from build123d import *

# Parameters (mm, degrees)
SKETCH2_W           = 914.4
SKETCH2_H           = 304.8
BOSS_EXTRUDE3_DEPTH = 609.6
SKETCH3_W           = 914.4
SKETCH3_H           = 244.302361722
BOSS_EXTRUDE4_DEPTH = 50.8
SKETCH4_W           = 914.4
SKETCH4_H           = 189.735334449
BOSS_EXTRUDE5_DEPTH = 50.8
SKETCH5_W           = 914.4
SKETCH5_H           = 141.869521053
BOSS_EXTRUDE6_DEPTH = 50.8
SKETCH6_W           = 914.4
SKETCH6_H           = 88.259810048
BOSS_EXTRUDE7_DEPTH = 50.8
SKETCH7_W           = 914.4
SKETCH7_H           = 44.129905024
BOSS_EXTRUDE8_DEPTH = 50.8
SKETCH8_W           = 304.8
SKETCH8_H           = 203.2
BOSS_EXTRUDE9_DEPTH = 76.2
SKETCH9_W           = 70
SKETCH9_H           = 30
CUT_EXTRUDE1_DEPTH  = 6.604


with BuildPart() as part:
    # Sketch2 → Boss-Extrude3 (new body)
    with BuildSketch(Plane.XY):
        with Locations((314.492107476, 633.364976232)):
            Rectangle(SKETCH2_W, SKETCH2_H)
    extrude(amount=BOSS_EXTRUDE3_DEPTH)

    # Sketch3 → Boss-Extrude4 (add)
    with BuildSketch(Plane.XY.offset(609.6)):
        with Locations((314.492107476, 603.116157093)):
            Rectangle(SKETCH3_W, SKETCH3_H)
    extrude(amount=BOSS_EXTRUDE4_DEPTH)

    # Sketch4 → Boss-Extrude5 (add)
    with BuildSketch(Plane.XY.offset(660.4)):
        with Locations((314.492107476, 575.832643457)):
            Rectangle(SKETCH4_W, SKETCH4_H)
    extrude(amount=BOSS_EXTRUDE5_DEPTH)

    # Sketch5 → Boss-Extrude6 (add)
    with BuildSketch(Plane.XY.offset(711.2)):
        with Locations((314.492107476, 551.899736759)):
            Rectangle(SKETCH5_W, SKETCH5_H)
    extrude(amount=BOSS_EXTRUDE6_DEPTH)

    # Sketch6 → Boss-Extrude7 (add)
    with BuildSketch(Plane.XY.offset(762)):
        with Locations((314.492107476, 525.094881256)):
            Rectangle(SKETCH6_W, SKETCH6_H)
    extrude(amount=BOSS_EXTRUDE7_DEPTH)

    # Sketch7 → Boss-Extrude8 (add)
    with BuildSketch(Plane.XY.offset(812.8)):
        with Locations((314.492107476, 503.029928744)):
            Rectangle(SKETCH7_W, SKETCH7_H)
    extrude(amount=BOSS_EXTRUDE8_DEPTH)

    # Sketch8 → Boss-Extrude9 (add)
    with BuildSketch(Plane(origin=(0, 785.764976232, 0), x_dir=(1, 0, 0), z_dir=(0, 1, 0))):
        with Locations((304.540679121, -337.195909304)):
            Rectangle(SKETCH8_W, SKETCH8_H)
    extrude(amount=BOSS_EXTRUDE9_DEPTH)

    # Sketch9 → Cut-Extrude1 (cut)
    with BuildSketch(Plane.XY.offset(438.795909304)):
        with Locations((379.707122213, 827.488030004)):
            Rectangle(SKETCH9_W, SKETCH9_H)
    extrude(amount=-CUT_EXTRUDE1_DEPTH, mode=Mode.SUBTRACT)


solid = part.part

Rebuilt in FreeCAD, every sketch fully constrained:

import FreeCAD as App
import Part
import Sketcher
Q = App.Units.Quantity

doc = App.newDocument("Part")
body = doc.addObject("PartDesign::Body", "Body")

sketch1 = body.newObject("Sketcher::SketchObject", "Sketch")
sketch1.AttachmentSupport = (doc.getObject("XY_Plane"), [""])
sketch1.MapMode = "FlatFace"
sketch1.addGeometry(Part.LineSegment(App.Vector(-142.707893, 785.764976, 0), App.Vector(-142.707893, 480.964976, 0)), False)
sketch1.addGeometry(Part.LineSegment(App.Vector(-142.707893, 480.964976, 0), App.Vector(771.692107, 480.964976, 0)), False)
sketch1.addGeometry(Part.LineSegment(App.Vector(771.692107, 480.964976, 0), App.Vector(771.692107, 785.764976, 0)), False)
sketch1.addGeometry(Part.LineSegment(App.Vector(771.692107, 785.764976, 0), App.Vector(-142.707893, 785.764976, 0)), False)
sketch1.addConstraint(Sketcher.Constraint("Coincident", 0, 2, 1, 1))
sketch1.addConstraint(Sketcher.Constraint("Coincident", 1, 2, 2, 1))
sketch1.addConstraint(Sketcher.Constraint("Coincident", 2, 2, 3, 1))
sketch1.addConstraint(Sketcher.Constraint("Coincident", 3, 2, 0, 1))
sketch1.addConstraint(Sketcher.Constraint("Vertical", 0))
sketch1.addConstraint(Sketcher.Constraint("Horizontal", 1))
sketch1.addConstraint(Sketcher.Constraint("Vertical", 2))
sketch1.addConstraint(Sketcher.Constraint("Horizontal", 3))
sketch1.addConstraint(Sketcher.Constraint("DistanceX", 1, 1, 1, 2, Q("36 in")))
sketch1.addConstraint(Sketcher.Constraint("DistanceY", 0, 2, 0, 1, Q("12 in")))
sketch1.addConstraint(Sketcher.Constraint("DistanceX", 0, 2, -1, 1, Q("142.707893 mm")))
sketch1.addConstraint(Sketcher.Constraint("DistanceY", -1, 1, 0, 2, Q("480.964976 mm")))
pad1 = body.newObject("PartDesign::Pad", "Pad")
pad1.Profile = sketch1
pad1.Length = Q("24 in")

sketch2 = body.newObject("Sketcher::SketchObject", "Sketch001")
sketch2.AttachmentSupport = (doc.getObject("XY_Plane"), [""])
sketch2.MapMode = "FlatFace"
sketch2.AttachmentOffset = App.Placement(App.Vector(0, 0, 24 * 25.4), App.Rotation())
sketch2.addGeometry(Part.LineSegment(App.Vector(-142.707893, 725.267338, 0), App.Vector(-142.707893, 480.964976, 0)), False)
sketch2.addGeometry(Part.LineSegment(App.Vector(-142.707893, 480.964976, 0), App.Vector(771.692107, 480.964976, 0)), False)
sketch2.addGeometry(Part.LineSegment(App.Vector(771.692107, 480.964976, 0), App.Vector(771.692107, 725.267338, 0)), False)
sketch2.addGeometry(Part.LineSegment(App.Vector(771.692107, 725.267338, 0), App.Vector(-142.707893, 725.267338, 0)), False)
sketch2.addConstraint(Sketcher.Constraint("Coincident", 0, 2, 1, 1))
sketch2.addConstraint(Sketcher.Constraint("Coincident", 1, 2, 2, 1))
sketch2.addConstraint(Sketcher.Constraint("Coincident", 2, 2, 3, 1))
sketch2.addConstraint(Sketcher.Constraint("Coincident", 3, 2, 0, 1))
sketch2.addConstraint(Sketcher.Constraint("Vertical", 0))
sketch2.addConstraint(Sketcher.Constraint("Horizontal", 1))
sketch2.addConstraint(Sketcher.Constraint("Vertical", 2))
sketch2.addConstraint(Sketcher.Constraint("Horizontal", 3))
sketch2.addConstraint(Sketcher.Constraint("DistanceX", 1, 1, 1, 2, Q("36 in")))
sketch2.addConstraint(Sketcher.Constraint("DistanceY", 0, 2, 0, 1, Q("244.302362 mm")))
sketch2.addConstraint(Sketcher.Constraint("DistanceX", 0, 2, -1, 1, Q("142.707893 mm")))
sketch2.addConstraint(Sketcher.Constraint("DistanceY", -1, 1, 0, 2, Q("480.964976 mm")))
pad2 = body.newObject("PartDesign::Pad", "Pad001")
pad2.Profile = sketch2
pad2.Length = Q("2 in")

sketch3 = body.newObject("Sketcher::SketchObject", "Sketch002")
sketch3.AttachmentSupport = (doc.getObject("XY_Plane"), [""])
sketch3.MapMode = "FlatFace"
sketch3.AttachmentOffset = App.Placement(App.Vector(0, 0, 26 * 25.4), App.Rotation())
sketch3.addGeometry(Part.LineSegment(App.Vector(-142.707893, 670.700311, 0), App.Vector(-142.707893, 480.964976, 0)), False)
sketch3.addGeometry(Part.LineSegment(App.Vector(-142.707893, 480.964976, 0), App.Vector(771.692107, 480.964976, 0)), False)
sketch3.addGeometry(Part.LineSegment(App.Vector(771.692107, 480.964976, 0), App.Vector(771.692107, 670.700311, 0)), False)
sketch3.addGeometry(Part.LineSegment(App.Vector(771.692107, 670.700311, 0), App.Vector(-142.707893, 670.700311, 0)), False)
sketch3.addConstraint(Sketcher.Constraint("Coincident", 0, 2, 1, 1))
sketch3.addConstraint(Sketcher.Constraint("Coincident", 1, 2, 2, 1))
sketch3.addConstraint(Sketcher.Constraint("Coincident", 2, 2, 3, 1))
sketch3.addConstraint(Sketcher.Constraint("Coincident", 3, 2, 0, 1))
sketch3.addConstraint(Sketcher.Constraint("Vertical", 0))
sketch3.addConstraint(Sketcher.Constraint("Horizontal", 1))
sketch3.addConstraint(Sketcher.Constraint("Vertical", 2))
sketch3.addConstraint(Sketcher.Constraint("Horizontal", 3))
sketch3.addConstraint(Sketcher.Constraint("DistanceX", 1, 1, 1, 2, Q("36 in")))
sketch3.addConstraint(Sketcher.Constraint("DistanceY", 0, 2, 0, 1, Q("189.735334 mm")))
sketch3.addConstraint(Sketcher.Constraint("DistanceY", -1, 1, 2, 2, Q("670.700311 mm")))
sketch3.addConstraint(Sketcher.Constraint("DistanceX", 0, 2, -1, 1, Q("142.707893 mm")))
pad3 = body.newObject("PartDesign::Pad", "Pad002")
pad3.Profile = sketch3
pad3.Length = Q("2 in")

sketch4 = body.newObject("Sketcher::SketchObject", "Sketch003")
sketch4.AttachmentSupport = (doc.getObject("XY_Plane"), [""])
sketch4.MapMode = "FlatFace"
sketch4.AttachmentOffset = App.Placement(App.Vector(0, 0, 28 * 25.4), App.Rotation())
sketch4.addGeometry(Part.LineSegment(App.Vector(-142.707893, 622.834497, 0), App.Vector(-142.707893, 480.964976, 0)), False)
sketch4.addGeometry(Part.LineSegment(App.Vector(-142.707893, 480.964976, 0), App.Vector(771.692107, 480.964976, 0)), False)
sketch4.addGeometry(Part.LineSegment(App.Vector(771.692107, 480.964976, 0), App.Vector(771.692107, 622.834497, 0)), False)
sketch4.addGeometry(Part.LineSegment(App.Vector(771.692107, 622.834497, 0), App.Vector(-142.707893, 622.834497, 0)), False)
sketch4.addConstraint(Sketcher.Constraint("Coincident", 0, 2, 1, 1))
sketch4.addConstraint(Sketcher.Constraint("Coincident", 1, 2, 2, 1))
sketch4.addConstraint(Sketcher.Constraint("Coincident", 2, 2, 3, 1))
sketch4.addConstraint(Sketcher.Constraint("Coincident", 3, 2, 0, 1))
sketch4.addConstraint(Sketcher.Constraint("Vertical", 0))
sketch4.addConstraint(Sketcher.Constraint("Horizontal", 1))
sketch4.addConstraint(Sketcher.Constraint("Vertical", 2))
sketch4.addConstraint(Sketcher.Constraint("Horizontal", 3))
sketch4.addConstraint(Sketcher.Constraint("DistanceX", 1, 1, 1, 2, Q("36 in")))
sketch4.addConstraint(Sketcher.Constraint("DistanceY", 0, 2, 0, 1, Q("141.869521 mm")))
sketch4.addConstraint(Sketcher.Constraint("DistanceX", 0, 2, -1, 1, Q("142.707893 mm")))
sketch4.addConstraint(Sketcher.Constraint("DistanceY", -1, 1, 0, 2, Q("480.964976 mm")))
pad4 = body.newObject("PartDesign::Pad", "Pad003")
pad4.Profile = sketch4
pad4.Length = Q("2 in")

sketch5 = body.newObject("Sketcher::SketchObject", "Sketch004")
sketch5.AttachmentSupport = (doc.getObject("XY_Plane"), [""])
sketch5.MapMode = "FlatFace"
sketch5.AttachmentOffset = App.Placement(App.Vector(0, 0, 30 * 25.4), App.Rotation())
sketch5.addGeometry(Part.LineSegment(App.Vector(-142.707893, 569.224786, 0), App.Vector(-142.707893, 480.964976, 0)), False)
sketch5.addGeometry(Part.LineSegment(App.Vector(-142.707893, 480.964976, 0), App.Vector(771.692107, 480.964976, 0)), False)
sketch5.addGeometry(Part.LineSegment(App.Vector(771.692107, 480.964976, 0), App.Vector(771.692107, 569.224786, 0)), False)
sketch5.addGeometry(Part.LineSegment(App.Vector(771.692107, 569.224786, 0), App.Vector(-142.707893, 569.224786, 0)), False)
sketch5.addConstraint(Sketcher.Constraint("Coincident", 0, 2, 1, 1))
sketch5.addConstraint(Sketcher.Constraint("Coincident", 1, 2, 2, 1))
sketch5.addConstraint(Sketcher.Constraint("Coincident", 2, 2, 3, 1))
sketch5.addConstraint(Sketcher.Constraint("Coincident", 3, 2, 0, 1))
sketch5.addConstraint(Sketcher.Constraint("Vertical", 0))
sketch5.addConstraint(Sketcher.Constraint("Horizontal", 1))
sketch5.addConstraint(Sketcher.Constraint("Vertical", 2))
sketch5.addConstraint(Sketcher.Constraint("Horizontal", 3))
sketch5.addConstraint(Sketcher.Constraint("DistanceX", 1, 1, 1, 2, Q("36 in")))
sketch5.addConstraint(Sketcher.Constraint("DistanceY", 0, 2, 0, 1, Q("88.25981 mm")))
sketch5.addConstraint(Sketcher.Constraint("DistanceX", 0, 2, -1, 1, Q("142.707893 mm")))
sketch5.addConstraint(Sketcher.Constraint("DistanceY", -1, 1, 0, 2, Q("480.964976 mm")))
pad5 = body.newObject("PartDesign::Pad", "Pad004")
pad5.Profile = sketch5
pad5.Length = Q("2 in")

sketch6 = body.newObject("Sketcher::SketchObject", "Sketch005")
sketch6.AttachmentSupport = (doc.getObject("XY_Plane"), [""])
sketch6.MapMode = "FlatFace"
sketch6.AttachmentOffset = App.Placement(App.Vector(0, 0, 32 * 25.4), App.Rotation())
sketch6.addGeometry(Part.LineSegment(App.Vector(-142.707893, 525.094881, 0), App.Vector(-142.707893, 480.964976, 0)), False)
sketch6.addGeometry(Part.LineSegment(App.Vector(-142.707893, 480.964976, 0), App.Vector(771.692107, 480.964976, 0)), False)
sketch6.addGeometry(Part.LineSegment(App.Vector(771.692107, 480.964976, 0), App.Vector(771.692107, 525.094881, 0)), False)
sketch6.addGeometry(Part.LineSegment(App.Vector(771.692107, 525.094881, 0), App.Vector(-142.707893, 525.094881, 0)), False)
sketch6.addConstraint(Sketcher.Constraint("Coincident", 0, 2, 1, 1))
sketch6.addConstraint(Sketcher.Constraint("Coincident", 1, 2, 2, 1))
sketch6.addConstraint(Sketcher.Constraint("Coincident", 2, 2, 3, 1))
sketch6.addConstraint(Sketcher.Constraint("Coincident", 3, 2, 0, 1))
sketch6.addConstraint(Sketcher.Constraint("Vertical", 0))
sketch6.addConstraint(Sketcher.Constraint("Horizontal", 1))
sketch6.addConstraint(Sketcher.Constraint("Vertical", 2))
sketch6.addConstraint(Sketcher.Constraint("Horizontal", 3))
sketch6.addConstraint(Sketcher.Constraint("DistanceX", 1, 1, 1, 2, Q("36 in")))
sketch6.addConstraint(Sketcher.Constraint("DistanceY", 0, 2, 0, 1, Q("44.129905 mm")))
sketch6.addConstraint(Sketcher.Constraint("DistanceY", -1, 1, 2, 2, Q("525.094881 mm")))
sketch6.addConstraint(Sketcher.Constraint("DistanceX", 0, 2, -1, 1, Q("142.707893 mm")))
pad6 = body.newObject("PartDesign::Pad", "Pad005")
pad6.Profile = sketch6
pad6.Length = Q("2 in")

sketch7 = body.newObject("Sketcher::SketchObject", "Sketch006")
sketch7.AttachmentSupport = (doc.getObject("XZ_Plane"), [""])
sketch7.MapMode = "FlatFace"
sketch7.AttachmentOffset = App.Placement(App.Vector(0, 0, -785.764976), App.Rotation())
sketch7.addGeometry(Part.LineSegment(App.Vector(152.140679, 235.595909, 0), App.Vector(152.140679, 438.795909, 0)), False)
sketch7.addGeometry(Part.LineSegment(App.Vector(152.140679, 438.795909, 0), App.Vector(456.940679, 438.795909, 0)), False)
sketch7.addGeometry(Part.LineSegment(App.Vector(456.940679, 438.795909, 0), App.Vector(456.940679, 235.595909, 0)), False)
sketch7.addGeometry(Part.LineSegment(App.Vector(456.940679, 235.595909, 0), App.Vector(152.140679, 235.595909, 0)), False)
sketch7.addConstraint(Sketcher.Constraint("Coincident", 0, 2, 1, 1))
sketch7.addConstraint(Sketcher.Constraint("Coincident", 1, 2, 2, 1))
sketch7.addConstraint(Sketcher.Constraint("Coincident", 2, 2, 3, 1))
sketch7.addConstraint(Sketcher.Constraint("Coincident", 3, 2, 0, 1))
sketch7.addConstraint(Sketcher.Constraint("Vertical", 0))
sketch7.addConstraint(Sketcher.Constraint("Horizontal", 1))
sketch7.addConstraint(Sketcher.Constraint("Vertical", 2))
sketch7.addConstraint(Sketcher.Constraint("Horizontal", 3))
sketch7.addConstraint(Sketcher.Constraint("DistanceX", 1, 1, 1, 2, Q("12 in")))
sketch7.addConstraint(Sketcher.Constraint("DistanceY", 0, 1, 0, 2, Q("8 in")))
sketch7.addConstraint(Sketcher.Constraint("DistanceX", -1, 1, 0, 2, Q("152.140679 mm")))
sketch7.addConstraint(Sketcher.Constraint("DistanceY", -1, 1, 0, 2, Q("438.795909 mm")))
pad7 = body.newObject("PartDesign::Pad", "Pad006")
pad7.Profile = sketch7
pad7.Length = Q("3 in")
pad7.Reversed = True

sketch8 = body.newObject("Sketcher::SketchObject", "Sketch007")
sketch8.AttachmentSupport = (doc.getObject("XY_Plane"), [""])
sketch8.MapMode = "FlatFace"
sketch8.AttachmentOffset = App.Placement(App.Vector(0, 0, 438.795909), App.Rotation())
sketch8.addGeometry(Part.LineSegment(App.Vector(344.707122, 842.48803, 0), App.Vector(344.707122, 812.48803, 0)), False)
sketch8.addGeometry(Part.LineSegment(App.Vector(344.707122, 812.48803, 0), App.Vector(414.707122, 812.48803, 0)), False)
sketch8.addGeometry(Part.LineSegment(App.Vector(414.707122, 812.48803, 0), App.Vector(414.707122, 842.48803, 0)), False)
sketch8.addGeometry(Part.LineSegment(App.Vector(414.707122, 842.48803, 0), App.Vector(344.707122, 842.48803, 0)), False)
sketch8.addConstraint(Sketcher.Constraint("Coincident", 0, 2, 1, 1))
sketch8.addConstraint(Sketcher.Constraint("Coincident", 1, 2, 2, 1))
sketch8.addConstraint(Sketcher.Constraint("Coincident", 2, 2, 3, 1))
sketch8.addConstraint(Sketcher.Constraint("Coincident", 3, 2, 0, 1))
sketch8.addConstraint(Sketcher.Constraint("Vertical", 0))
sketch8.addConstraint(Sketcher.Constraint("Horizontal", 1))
sketch8.addConstraint(Sketcher.Constraint("Vertical", 2))
sketch8.addConstraint(Sketcher.Constraint("Horizontal", 3))
sketch8.addConstraint(Sketcher.Constraint("DistanceX", 1, 1, 1, 2, Q("70 mm")))
sketch8.addConstraint(Sketcher.Constraint("DistanceY", 0, 2, 0, 1, Q("30 mm")))
sketch8.addConstraint(Sketcher.Constraint("DistanceY", -1, 1, 0, 2, Q("812.48803 mm")))
sketch8.addConstraint(Sketcher.Constraint("DistanceX", -1, 1, 0, 2, Q("344.707122 mm")))
pocket1 = body.newObject("PartDesign::Pocket", "Pocket")
pocket1.Profile = sketch8
pocket1.Length = Q("0.26 in")

doc.recompute()
